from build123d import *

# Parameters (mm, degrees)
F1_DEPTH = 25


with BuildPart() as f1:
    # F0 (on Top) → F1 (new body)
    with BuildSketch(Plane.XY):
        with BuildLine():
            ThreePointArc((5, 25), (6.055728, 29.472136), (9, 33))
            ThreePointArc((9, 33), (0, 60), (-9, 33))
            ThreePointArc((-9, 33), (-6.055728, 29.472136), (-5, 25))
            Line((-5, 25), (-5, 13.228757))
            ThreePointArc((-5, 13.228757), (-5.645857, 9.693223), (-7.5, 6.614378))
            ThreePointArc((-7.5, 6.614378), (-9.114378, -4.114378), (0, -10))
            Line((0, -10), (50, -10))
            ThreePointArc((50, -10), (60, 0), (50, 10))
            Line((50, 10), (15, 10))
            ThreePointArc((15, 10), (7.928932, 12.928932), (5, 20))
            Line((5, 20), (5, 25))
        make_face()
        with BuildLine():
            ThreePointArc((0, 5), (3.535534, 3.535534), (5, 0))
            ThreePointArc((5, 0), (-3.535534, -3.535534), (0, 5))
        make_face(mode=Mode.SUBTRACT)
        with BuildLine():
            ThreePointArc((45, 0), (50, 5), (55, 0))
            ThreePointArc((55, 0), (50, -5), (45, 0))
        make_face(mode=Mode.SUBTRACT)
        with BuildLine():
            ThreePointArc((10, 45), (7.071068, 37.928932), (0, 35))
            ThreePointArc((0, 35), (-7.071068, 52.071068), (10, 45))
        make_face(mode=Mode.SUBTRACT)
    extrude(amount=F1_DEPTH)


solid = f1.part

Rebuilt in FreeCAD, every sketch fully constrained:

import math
import FreeCAD as App
import Part
import Sketcher

V = App.Vector

doc = App.newDocument("Part")
body = doc.addObject("PartDesign::Body", "Body")

# Sketch on XY plane
sketch1 = doc.addObject("Sketcher::SketchObject", "Sketch")
body.addObject(sketch1)
sketch1.AttachmentSupport = (doc.XY_Plane, [""])
sketch1.MapMode = "FlatFace"
sketch1.addGeometry([
    Part.ArcOfCircle(Part.Circle(V(15, 25, 0), V(0, 0, 1), 10), math.radians(127), math.radians(180)),  # 0
    Part.ArcOfCircle(Part.Circle(V(0, 45, 0), V(0, 0, 1), 15), math.radians(-53), math.radians(233)),  # 1
    Part.ArcOfCircle(Part.Circle(V(-15, 25, 0), V(0, 0, 1), 10), math.radians(0), math.radians(53)),  # 2
    Part.LineSegment(V(-5, 25, 0), V(-5, 13.2, 0)),  # 3
    Part.ArcOfCircle(Part.Circle(V(-15, 13.2, 0), V(0, 0, 1), 10), math.radians(-41), math.radians(0)),  # 4
    Part.ArcOfCircle(Part.Circle(V(0, 0, 0), V(0, 0, 1), 10), math.radians(139), math.radians(270)),  # 5
    Part.LineSegment(V(0, -10, 0), V(50, -10, 0)),  # 6
    Part.ArcOfCircle(Part.Circle(V(50, 0, 0), V(0, 0, 1), 10), math.radians(-90), math.radians(90)),  # 7
    Part.LineSegment(V(50, 10, 0), V(15, 10, 0)),  # 8
    Part.ArcOfCircle(Part.Circle(V(15, 20, 0), V(0, 0, 1), 10), math.radians(180), math.radians(270)),  # 9
    Part.LineSegment(V(5, 20, 0), V(5, 25, 0)),  # 10
    Part.ArcOfCircle(Part.Circle(V(0, 0, 0), V(0, 0, 1), 5), math.radians(90), math.radians(360)),  # 11
    Part.ArcOfCircle(Part.Circle(V(0, 0, 0), V(0, 0, 1), 5), math.radians(0), math.radians(90)),  # 12
    Part.Circle(V(50, 0, 0), V(0, 0, 1), 5),  # 13
    Part.ArcOfCircle(Part.Circle(V(0, 45, 0), V(0, 0, 1), 10), math.radians(0), math.radians(270)),  # 14
    Part.ArcOfCircle(Part.Circle(V(0, 45, 0), V(0, 0, 1), 10), math.radians(-90), math.radians(0)),  # 15
], False)
sketch1.addConstraint([
    Sketcher.Constraint("Tangent", 0, 1, 1, 1),
    Sketcher.Constraint("Tangent", 1, 2, 2, 2),
    Sketcher.Constraint("Tangent", 2, 1, 3, 1),
    Sketcher.Constraint("Tangent", 3, 2, 4, 2),
    Sketcher.Constraint("Tangent", 4, 1, 5, 1),
    Sketcher.Constraint("Tangent", 5, 2, 6, 1),
    Sketcher.Constraint("Tangent", 6, 2, 7, 1),
    Sketcher.Constraint("Tangent", 7, 2, 8, 1),
    Sketcher.Constraint("Tangent", 8, 2, 9, 2),
    Sketcher.Constraint("Tangent", 9, 1, 10, 1),
    Sketcher.Constraint("Tangent", 10, 2, 0, 2),
    Sketcher.Constraint("Tangent", 11, 1, 12, 2),
    Sketcher.Constraint("Coincident", 12, 1, 11, 2),
    Sketcher.Constraint("Tangent", 14, 1, 15, 2),
    Sketcher.Constraint("Coincident", 15, 1, 14, 2),
    Sketcher.Constraint("Vertical", 3),
    Sketcher.Constraint("Horizontal", 6),
    Sketcher.Constraint("Horizontal", 8),
    Sketcher.Constraint("Vertical", 10),
    Sketcher.Constraint("Coincident", 5, 3, -1, 1),
    Sketcher.Constraint("Coincident", 11, 3, -1, 1),
    Sketcher.Constraint("Coincident", 13, 3, 7, 3),
    Sketcher.Constraint("Coincident", 14, 3, 1, 3),
    Sketcher.Constraint("Equal", 0, 2),
    Sketcher.Constraint("Equal", 2, 5),
    Sketcher.Constraint("Equal", 5, 7),
    Sketcher.Constraint("Equal", 7, 9),
    Sketcher.Constraint("Equal", 12, 13),
    Sketcher.Constraint("Equal", 9, 14),
    Sketcher.Constraint("Symmetric", 0, 3, 2, 3, -2),
    Sketcher.Constraint("PointOnObject", 11, 1, -2),
    Sketcher.Constraint("PointOnObject", 12, 1, -1),
    Sketcher.Constraint("PointOnObject", 15, 1, -2),
    Sketcher.Constraint("Horizontal", 15, 3, 14, 1),
    Sketcher.Constraint("Vertical", 10, 2, 12, 1),
    Sketcher.Constraint("Diameter", 13, 10.0),
    Sketcher.Constraint("Radius", 0, 9.999999),
    Sketcher.Constraint("Radius", 1, 15.0),
    Sketcher.Constraint("DistanceX", 6, 1, 6, 2, 50.0),
    Sketcher.Constraint("DistanceY", 10, 1, 10, 2, 5.0),
    Sketcher.Constraint("DistanceX", 4, 1, -1, 1, 7.5),
])
pad1 = doc.addObject("PartDesign::Pad", "Pad")
body.addObject(pad1)
pad1.Profile = sketch1
pad1.Length = 25

doc.recompute()
